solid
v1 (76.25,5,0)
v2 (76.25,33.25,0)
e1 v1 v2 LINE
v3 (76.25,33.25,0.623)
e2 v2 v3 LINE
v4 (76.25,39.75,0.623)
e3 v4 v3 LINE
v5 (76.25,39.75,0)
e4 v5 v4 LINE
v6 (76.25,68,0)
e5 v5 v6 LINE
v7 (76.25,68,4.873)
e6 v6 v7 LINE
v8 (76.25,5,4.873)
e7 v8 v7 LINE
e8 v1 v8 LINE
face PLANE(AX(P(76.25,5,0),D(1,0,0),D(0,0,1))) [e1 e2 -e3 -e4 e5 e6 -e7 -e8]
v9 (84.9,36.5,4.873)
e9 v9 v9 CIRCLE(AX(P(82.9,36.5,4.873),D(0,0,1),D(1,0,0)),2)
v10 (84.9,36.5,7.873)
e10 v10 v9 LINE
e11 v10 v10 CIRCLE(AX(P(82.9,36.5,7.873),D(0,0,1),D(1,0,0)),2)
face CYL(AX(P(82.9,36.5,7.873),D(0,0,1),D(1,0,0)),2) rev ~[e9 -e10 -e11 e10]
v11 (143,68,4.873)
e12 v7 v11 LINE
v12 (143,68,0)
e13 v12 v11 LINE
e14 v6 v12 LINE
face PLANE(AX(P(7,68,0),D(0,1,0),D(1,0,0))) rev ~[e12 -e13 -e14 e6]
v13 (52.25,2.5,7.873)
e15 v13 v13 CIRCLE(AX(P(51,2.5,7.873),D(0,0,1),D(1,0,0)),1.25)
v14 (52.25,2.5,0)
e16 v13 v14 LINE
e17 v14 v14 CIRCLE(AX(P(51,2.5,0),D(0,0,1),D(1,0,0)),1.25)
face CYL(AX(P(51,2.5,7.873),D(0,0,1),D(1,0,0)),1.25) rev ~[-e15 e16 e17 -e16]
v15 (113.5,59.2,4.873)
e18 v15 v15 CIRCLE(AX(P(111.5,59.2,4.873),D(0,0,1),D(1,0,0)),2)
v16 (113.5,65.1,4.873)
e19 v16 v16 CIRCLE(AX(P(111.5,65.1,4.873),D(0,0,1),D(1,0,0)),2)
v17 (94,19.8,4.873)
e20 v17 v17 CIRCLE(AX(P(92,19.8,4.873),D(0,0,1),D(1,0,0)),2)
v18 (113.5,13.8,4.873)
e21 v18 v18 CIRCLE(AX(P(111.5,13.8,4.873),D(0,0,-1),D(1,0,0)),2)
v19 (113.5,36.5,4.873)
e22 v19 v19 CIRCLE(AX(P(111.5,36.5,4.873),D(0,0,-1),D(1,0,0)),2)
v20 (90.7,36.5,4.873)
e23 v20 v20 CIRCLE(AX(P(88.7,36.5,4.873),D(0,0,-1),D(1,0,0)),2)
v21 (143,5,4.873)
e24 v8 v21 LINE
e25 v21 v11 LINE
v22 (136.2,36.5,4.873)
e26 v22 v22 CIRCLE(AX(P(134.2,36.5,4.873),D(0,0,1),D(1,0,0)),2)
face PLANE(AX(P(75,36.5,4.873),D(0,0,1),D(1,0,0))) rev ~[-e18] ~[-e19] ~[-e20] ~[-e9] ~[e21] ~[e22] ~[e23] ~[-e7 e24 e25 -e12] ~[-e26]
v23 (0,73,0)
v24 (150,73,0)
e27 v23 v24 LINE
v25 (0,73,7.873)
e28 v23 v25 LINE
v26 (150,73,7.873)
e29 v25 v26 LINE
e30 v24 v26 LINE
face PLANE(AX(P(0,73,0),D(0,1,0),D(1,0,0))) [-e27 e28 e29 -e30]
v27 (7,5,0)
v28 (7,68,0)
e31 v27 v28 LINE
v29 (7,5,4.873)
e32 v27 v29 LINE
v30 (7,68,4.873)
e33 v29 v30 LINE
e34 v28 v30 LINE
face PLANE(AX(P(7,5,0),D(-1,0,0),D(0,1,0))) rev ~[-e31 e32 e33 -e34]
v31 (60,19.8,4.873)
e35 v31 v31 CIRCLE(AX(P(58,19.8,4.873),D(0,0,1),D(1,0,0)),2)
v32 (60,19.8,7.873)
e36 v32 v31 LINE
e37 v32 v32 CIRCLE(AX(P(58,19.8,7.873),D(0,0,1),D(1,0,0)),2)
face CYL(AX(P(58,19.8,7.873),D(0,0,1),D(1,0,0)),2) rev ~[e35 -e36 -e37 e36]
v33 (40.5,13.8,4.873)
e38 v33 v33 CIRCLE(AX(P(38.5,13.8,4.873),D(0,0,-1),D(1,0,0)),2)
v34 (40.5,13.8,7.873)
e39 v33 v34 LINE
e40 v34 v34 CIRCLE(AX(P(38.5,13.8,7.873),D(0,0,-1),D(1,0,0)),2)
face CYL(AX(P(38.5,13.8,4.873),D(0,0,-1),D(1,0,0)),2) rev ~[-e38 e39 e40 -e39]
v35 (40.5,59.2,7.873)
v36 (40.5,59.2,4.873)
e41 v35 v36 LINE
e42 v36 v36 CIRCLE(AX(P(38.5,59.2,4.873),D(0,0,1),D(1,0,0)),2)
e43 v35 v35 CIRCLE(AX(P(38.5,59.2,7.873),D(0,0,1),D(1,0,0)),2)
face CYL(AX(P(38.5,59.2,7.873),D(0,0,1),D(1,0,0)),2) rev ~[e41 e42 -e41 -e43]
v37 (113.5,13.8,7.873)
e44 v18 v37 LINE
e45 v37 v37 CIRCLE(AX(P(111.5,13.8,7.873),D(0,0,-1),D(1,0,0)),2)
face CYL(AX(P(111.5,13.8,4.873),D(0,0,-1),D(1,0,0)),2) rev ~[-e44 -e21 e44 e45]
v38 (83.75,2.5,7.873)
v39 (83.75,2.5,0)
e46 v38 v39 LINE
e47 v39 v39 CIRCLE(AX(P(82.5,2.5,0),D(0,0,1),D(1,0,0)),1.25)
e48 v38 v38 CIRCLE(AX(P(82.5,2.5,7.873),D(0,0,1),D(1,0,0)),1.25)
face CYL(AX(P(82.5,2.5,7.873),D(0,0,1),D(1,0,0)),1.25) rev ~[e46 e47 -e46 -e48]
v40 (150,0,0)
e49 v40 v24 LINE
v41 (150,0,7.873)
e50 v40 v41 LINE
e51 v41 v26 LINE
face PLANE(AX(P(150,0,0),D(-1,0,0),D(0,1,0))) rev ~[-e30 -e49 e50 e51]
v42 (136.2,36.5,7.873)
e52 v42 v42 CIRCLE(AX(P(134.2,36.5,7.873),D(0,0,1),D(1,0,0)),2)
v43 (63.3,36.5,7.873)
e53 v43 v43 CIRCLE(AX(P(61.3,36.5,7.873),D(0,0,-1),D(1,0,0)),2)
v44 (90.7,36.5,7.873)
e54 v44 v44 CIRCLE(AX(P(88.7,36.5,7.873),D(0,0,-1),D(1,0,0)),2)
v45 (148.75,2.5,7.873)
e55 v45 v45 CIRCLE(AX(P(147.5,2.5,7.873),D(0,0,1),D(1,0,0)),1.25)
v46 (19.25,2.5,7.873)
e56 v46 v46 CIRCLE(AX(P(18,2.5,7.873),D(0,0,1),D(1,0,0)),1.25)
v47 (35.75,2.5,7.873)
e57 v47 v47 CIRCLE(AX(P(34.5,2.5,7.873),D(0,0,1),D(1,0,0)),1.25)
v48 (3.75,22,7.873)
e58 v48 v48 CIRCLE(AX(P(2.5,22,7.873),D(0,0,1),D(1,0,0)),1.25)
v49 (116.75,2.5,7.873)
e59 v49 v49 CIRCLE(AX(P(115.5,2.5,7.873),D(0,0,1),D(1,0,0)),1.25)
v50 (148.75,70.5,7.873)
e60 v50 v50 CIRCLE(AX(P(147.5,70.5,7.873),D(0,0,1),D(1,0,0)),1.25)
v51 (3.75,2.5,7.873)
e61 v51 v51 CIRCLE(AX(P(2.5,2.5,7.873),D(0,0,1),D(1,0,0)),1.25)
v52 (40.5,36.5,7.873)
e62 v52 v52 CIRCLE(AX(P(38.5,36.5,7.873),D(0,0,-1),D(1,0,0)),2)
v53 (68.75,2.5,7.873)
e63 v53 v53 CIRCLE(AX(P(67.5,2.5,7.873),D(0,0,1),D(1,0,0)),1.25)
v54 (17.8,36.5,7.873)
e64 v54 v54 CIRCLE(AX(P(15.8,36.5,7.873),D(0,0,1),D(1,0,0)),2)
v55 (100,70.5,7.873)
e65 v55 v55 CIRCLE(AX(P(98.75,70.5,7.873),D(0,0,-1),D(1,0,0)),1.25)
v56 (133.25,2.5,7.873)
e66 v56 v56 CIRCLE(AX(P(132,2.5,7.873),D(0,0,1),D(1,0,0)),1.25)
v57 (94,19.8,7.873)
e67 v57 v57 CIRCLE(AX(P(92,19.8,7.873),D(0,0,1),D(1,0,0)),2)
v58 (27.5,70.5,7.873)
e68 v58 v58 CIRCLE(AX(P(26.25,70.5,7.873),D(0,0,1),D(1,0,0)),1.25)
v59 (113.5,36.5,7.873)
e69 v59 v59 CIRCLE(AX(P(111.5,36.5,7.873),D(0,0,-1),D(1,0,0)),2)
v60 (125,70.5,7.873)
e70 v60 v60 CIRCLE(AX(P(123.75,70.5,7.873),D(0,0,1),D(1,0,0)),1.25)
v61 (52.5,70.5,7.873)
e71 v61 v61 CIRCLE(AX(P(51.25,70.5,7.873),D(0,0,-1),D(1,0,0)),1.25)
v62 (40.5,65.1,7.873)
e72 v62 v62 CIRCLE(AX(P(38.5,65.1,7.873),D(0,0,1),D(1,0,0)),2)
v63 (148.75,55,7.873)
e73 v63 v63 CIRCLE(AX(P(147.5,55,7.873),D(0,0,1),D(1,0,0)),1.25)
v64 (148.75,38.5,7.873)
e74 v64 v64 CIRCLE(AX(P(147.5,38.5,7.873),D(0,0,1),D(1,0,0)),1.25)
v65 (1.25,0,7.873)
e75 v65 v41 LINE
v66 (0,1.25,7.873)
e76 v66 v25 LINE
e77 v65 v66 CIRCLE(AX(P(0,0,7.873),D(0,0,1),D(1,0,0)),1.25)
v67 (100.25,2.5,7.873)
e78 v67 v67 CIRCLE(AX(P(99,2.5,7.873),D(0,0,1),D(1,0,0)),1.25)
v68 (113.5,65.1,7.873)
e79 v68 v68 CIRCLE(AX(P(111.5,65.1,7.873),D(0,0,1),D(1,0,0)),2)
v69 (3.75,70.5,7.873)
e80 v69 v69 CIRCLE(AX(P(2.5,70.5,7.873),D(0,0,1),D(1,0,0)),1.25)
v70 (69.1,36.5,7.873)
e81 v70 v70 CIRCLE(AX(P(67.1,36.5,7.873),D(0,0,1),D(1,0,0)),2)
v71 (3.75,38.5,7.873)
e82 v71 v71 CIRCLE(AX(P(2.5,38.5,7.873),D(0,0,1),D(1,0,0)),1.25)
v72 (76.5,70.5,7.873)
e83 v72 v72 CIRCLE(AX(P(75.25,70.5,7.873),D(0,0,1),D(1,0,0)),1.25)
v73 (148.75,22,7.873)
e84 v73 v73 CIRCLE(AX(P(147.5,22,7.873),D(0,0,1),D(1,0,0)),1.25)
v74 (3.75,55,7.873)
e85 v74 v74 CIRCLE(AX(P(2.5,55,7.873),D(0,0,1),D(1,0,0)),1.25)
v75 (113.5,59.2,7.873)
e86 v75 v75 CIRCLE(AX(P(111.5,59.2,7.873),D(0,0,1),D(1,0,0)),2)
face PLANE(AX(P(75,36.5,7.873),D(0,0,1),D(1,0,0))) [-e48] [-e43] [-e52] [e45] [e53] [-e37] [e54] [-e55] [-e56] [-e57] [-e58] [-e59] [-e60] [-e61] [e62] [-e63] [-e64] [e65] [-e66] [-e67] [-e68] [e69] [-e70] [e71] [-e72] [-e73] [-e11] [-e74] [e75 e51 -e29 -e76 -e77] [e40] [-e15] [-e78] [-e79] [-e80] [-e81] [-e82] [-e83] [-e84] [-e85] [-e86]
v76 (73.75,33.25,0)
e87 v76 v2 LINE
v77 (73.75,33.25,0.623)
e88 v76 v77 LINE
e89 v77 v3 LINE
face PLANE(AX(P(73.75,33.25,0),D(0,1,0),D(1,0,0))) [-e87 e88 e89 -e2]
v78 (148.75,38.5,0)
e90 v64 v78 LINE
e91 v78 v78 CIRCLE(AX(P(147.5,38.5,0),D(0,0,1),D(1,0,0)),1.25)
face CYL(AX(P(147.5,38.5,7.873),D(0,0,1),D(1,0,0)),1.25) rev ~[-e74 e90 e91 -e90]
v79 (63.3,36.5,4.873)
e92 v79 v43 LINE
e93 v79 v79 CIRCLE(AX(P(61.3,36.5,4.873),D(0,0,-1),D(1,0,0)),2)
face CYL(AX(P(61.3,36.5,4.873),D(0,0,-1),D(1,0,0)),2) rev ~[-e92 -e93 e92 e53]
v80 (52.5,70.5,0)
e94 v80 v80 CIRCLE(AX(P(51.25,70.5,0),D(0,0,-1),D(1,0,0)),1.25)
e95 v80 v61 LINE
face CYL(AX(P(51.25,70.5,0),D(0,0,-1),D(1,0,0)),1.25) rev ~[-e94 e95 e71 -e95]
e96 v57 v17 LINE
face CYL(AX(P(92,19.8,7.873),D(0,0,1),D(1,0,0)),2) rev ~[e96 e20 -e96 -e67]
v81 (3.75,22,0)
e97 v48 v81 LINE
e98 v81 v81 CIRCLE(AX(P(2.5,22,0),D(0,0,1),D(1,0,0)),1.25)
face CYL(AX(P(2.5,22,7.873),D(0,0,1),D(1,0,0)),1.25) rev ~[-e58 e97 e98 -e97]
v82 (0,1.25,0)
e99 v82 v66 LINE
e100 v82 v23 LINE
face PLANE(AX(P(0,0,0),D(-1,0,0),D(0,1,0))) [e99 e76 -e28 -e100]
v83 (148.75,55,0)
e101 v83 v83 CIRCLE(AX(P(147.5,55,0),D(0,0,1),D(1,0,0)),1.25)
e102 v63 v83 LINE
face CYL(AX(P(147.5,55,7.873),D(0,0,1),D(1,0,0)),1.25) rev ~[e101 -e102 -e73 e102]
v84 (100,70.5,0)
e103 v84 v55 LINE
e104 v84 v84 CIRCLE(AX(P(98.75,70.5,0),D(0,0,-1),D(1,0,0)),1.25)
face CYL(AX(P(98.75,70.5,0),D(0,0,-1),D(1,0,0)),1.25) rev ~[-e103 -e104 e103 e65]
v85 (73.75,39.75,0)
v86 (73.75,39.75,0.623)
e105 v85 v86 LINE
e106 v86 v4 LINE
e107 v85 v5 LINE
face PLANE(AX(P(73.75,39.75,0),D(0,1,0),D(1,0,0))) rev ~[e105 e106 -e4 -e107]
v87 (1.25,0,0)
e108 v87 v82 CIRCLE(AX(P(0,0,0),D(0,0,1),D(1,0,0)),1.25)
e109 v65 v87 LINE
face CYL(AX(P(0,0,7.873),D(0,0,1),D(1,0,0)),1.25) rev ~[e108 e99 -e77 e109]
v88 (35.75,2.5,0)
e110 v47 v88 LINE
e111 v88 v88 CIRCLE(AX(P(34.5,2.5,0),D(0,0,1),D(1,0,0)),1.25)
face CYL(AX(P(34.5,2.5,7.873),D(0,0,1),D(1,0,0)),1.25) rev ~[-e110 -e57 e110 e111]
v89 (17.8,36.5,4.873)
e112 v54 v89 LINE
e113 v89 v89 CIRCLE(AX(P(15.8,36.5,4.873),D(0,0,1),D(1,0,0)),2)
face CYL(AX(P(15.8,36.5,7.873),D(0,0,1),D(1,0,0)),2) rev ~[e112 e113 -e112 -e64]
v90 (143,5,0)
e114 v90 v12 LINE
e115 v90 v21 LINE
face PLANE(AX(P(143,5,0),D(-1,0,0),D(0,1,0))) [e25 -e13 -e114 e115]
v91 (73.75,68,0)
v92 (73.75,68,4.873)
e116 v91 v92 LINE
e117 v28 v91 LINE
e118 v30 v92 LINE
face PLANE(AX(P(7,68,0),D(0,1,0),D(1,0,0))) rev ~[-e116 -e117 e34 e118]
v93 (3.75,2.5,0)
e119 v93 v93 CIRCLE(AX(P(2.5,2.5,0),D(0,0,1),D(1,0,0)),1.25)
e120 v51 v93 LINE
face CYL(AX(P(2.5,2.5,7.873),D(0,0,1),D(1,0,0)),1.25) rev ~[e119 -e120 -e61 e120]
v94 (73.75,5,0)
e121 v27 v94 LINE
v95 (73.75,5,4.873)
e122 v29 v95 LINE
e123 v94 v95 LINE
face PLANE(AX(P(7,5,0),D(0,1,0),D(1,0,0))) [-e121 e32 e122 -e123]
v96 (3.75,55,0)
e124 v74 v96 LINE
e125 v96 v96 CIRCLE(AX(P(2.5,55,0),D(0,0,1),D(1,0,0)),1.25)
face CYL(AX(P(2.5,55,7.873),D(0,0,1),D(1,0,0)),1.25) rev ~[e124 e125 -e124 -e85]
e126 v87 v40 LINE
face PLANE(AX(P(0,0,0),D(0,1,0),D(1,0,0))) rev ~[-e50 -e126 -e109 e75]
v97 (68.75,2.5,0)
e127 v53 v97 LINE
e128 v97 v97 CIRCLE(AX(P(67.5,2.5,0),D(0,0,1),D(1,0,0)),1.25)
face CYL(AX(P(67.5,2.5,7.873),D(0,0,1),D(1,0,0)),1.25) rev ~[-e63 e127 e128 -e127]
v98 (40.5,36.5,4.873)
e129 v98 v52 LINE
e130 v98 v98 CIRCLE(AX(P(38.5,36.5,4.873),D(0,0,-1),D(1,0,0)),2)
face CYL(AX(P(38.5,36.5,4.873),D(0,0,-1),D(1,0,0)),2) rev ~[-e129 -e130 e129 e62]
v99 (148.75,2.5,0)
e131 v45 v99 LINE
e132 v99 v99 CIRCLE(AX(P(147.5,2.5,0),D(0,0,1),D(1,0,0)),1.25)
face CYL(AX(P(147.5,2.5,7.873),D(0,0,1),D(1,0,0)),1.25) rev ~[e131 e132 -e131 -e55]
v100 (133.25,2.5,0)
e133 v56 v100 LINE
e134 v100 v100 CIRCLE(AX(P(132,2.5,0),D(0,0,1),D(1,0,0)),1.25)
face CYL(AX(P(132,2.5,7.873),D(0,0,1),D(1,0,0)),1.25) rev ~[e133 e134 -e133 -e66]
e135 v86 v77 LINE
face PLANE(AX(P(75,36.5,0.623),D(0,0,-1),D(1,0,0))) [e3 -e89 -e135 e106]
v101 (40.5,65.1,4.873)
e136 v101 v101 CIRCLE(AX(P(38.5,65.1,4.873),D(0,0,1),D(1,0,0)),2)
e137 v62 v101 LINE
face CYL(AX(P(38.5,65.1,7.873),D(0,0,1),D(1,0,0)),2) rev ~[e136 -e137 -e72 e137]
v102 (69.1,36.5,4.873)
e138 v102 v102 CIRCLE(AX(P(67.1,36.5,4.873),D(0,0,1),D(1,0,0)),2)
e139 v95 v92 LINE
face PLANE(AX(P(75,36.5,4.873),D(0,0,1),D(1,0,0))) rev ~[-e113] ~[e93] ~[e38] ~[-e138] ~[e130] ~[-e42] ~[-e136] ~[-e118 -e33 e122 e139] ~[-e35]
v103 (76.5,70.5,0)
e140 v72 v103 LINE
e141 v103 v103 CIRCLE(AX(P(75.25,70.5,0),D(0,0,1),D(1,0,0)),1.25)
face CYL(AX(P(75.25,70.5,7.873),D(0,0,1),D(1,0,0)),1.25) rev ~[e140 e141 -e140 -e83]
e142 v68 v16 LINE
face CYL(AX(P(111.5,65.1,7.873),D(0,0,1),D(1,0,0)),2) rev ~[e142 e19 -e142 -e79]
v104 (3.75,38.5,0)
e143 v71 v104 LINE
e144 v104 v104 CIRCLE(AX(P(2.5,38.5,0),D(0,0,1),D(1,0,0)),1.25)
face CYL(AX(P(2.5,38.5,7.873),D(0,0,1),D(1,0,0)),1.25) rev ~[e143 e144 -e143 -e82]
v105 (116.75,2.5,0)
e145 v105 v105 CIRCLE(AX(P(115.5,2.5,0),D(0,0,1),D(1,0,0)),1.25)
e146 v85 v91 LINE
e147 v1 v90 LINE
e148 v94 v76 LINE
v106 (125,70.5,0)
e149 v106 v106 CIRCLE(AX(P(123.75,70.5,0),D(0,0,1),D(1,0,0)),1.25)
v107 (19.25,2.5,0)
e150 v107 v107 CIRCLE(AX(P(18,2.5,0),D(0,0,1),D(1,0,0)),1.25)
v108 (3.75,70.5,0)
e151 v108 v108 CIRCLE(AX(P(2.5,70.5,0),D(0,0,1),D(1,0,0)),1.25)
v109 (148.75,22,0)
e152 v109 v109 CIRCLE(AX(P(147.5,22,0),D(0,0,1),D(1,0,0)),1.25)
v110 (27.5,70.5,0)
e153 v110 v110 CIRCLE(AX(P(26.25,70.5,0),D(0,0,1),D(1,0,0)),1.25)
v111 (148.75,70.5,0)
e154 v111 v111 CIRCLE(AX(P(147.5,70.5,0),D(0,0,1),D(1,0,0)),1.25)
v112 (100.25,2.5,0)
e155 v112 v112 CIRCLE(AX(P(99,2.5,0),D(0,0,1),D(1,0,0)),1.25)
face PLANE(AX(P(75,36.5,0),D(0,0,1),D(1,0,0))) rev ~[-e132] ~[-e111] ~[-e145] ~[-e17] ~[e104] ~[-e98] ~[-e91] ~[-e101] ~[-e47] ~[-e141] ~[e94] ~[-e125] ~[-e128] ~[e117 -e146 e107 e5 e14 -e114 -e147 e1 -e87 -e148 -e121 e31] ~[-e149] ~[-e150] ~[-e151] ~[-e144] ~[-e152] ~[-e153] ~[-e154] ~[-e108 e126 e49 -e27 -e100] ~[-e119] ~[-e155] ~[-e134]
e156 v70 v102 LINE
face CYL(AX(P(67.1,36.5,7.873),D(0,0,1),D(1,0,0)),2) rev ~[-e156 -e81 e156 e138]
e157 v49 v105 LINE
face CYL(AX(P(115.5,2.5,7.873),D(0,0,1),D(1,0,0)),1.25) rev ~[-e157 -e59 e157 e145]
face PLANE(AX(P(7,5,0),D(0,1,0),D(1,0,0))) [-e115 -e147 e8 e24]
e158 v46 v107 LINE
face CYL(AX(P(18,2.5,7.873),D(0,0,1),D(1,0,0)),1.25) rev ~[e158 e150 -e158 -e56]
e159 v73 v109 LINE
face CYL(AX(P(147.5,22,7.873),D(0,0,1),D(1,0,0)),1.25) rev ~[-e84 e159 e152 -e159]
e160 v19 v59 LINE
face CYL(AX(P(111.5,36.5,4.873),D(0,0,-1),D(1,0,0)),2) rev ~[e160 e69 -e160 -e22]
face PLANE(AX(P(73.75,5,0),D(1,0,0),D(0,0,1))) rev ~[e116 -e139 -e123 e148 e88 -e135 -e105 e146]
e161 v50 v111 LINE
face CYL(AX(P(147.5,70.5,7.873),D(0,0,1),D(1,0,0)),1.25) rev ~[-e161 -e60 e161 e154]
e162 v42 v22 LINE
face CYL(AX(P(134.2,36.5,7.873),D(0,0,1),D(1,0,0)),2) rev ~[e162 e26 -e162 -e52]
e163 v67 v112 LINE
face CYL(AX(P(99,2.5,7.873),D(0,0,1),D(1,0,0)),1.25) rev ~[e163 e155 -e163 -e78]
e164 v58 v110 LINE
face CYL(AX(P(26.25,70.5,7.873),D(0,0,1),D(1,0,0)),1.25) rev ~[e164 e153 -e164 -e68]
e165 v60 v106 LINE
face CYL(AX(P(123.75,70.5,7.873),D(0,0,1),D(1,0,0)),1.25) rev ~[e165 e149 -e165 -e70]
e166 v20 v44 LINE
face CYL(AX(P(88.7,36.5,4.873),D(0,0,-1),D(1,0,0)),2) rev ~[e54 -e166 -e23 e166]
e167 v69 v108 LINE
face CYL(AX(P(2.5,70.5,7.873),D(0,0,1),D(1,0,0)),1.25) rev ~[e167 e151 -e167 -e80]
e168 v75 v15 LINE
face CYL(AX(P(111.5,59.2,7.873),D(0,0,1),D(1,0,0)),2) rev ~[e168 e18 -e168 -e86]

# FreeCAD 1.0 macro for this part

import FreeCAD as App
import Part
import Sketcher

V = App.Vector

doc = App.newDocument("Part")
body = doc.addObject("PartDesign::Body", "Body")

# Sketch on XY plane
sketch1 = body.newObject("Sketcher::SketchObject", "Sketch")
sketch1.AttachmentSupport = (doc.getObject("XY_Plane"), [""])
sketch1.MapMode = "FlatFace"
sketch1.addGeometry(Part.LineSegment(V(0, 73, 0), V(0, 0, 0)), False)
sketch1.addGeometry(Part.LineSegment(V(0, 0, 0), V(150, 0, 0)), False)
sketch1.addGeometry(Part.LineSegment(V(150, 0, 0), V(150, 73, 0)), False)
sketch1.addGeometry(Part.LineSegment(V(150, 73, 0), V(0, 73, 0)), False)
sketch1.addConstraint(Sketcher.Constraint("Coincident", 0, 2, 1, 1))
sketch1.addConstraint(Sketcher.Constraint("Coincident", 1, 2, 2, 1))
sketch1.addConstraint(Sketcher.Constraint("Coincident", 2, 2, 3, 1))
sketch1.addConstraint(Sketcher.Constraint("Coincident", 3, 2, 0, 1))
sketch1.addConstraint(Sketcher.Constraint("Vertical", 0))
sketch1.addConstraint(Sketcher.Constraint("Horizontal", 1))
sketch1.addConstraint(Sketcher.Constraint("Vertical", 2))
sketch1.addConstraint(Sketcher.Constraint("Horizontal", 3))
sketch1.addConstraint(Sketcher.Constraint("Coincident", 0, 2, -1, 1))
sketch1.addConstraint(Sketcher.Constraint("DistanceX", 1, 1, 1, 2, 150.0))
sketch1.addConstraint(Sketcher.Constraint("DistanceY", 0, 2, 0, 1, 73.0))
pad1 = body.newObject("PartDesign::Pad", "Pad")
pad1.Profile = sketch1
pad1.Length = 7.873

# Sketch on XY plane
sketch2 = body.newObject("Sketcher::SketchObject", "Sketch001")
sketch2.AttachmentSupport = (doc.getObject("XY_Plane"), [""])
sketch2.MapMode = "FlatFace"
sketch2.addGeometry(Part.LineSegment(V(7, 68, 0), V(7, 5, 0)), False)
sketch2.addGeometry(Part.LineSegment(V(7, 5, 0), V(143, 5, 0)), False)
sketch2.addGeometry(Part.LineSegment(V(143, 5, 0), V(143, 68, 0)), False)
sketch2.addGeometry(Part.LineSegment(V(143, 68, 0), V(7, 68, 0)), False)
sketch2.addConstraint(Sketcher.Constraint("Coincident", 0, 2, 1, 1))
sketch2.addConstraint(Sketcher.Constraint("Coincident", 1, 2, 2, 1))
sketch2.addConstraint(Sketcher.Constraint("Coincident", 2, 2, 3, 1))
sketch2.addConstraint(Sketcher.Constraint("Coincident", 3, 2, 0, 1))
sketch2.addConstraint(Sketcher.Constraint("Vertical", 0))
sketch2.addConstraint(Sketcher.Constraint("Horizontal", 1))
sketch2.addConstraint(Sketcher.Constraint("Vertical", 2))
sketch2.addConstraint(Sketcher.Constraint("Horizontal", 3))
sketch2.addConstraint(Sketcher.Constraint("DistanceX", 1, 1, 1, 2, 136.0))
sketch2.addConstraint(Sketcher.Constraint("DistanceY", 0, 2, 0, 1, 63.0))
sketch2.addConstraint(Sketcher.Constraint("DistanceX", -1, 1, 0, 2, 7.0))
sketch2.addConstraint(Sketcher.Constraint("DistanceY", -1, 1, 0, 2, 5.0))
pocket1 = body.newObject("PartDesign::Pocket", "Pocket")
pocket1.Profile = sketch2
pocket1.Length = 4.873
pocket1.Reversed = True

# Sketch on XY plane
sketch3 = body.newObject("Sketcher::SketchObject", "Sketch002")
sketch3.AttachmentSupport = (doc.getObject("XY_Plane"), [""])
sketch3.MapMode = "FlatFace"
sketch3.AttachmentOffset = App.Placement(V(0, 0, 7.873), App.Rotation())
sketch3.addGeometry(Part.Circle(V(2.5, 2.5, 0), V(0, 0, 1), 1.2), False)
sketch3.addConstraint(Sketcher.Constraint("Diameter", 0, 2.5))
sketch3.addConstraint(Sketcher.Constraint("DistanceX", -1, 1, 0, 3, 2.5))
sketch3.addConstraint(Sketcher.Constraint("DistanceY", -1, 1, 0, 3, 2.5))
pocket2 = body.newObject("PartDesign::Pocket", "Pocket001")
pocket2.Profile = sketch3
pocket2.Length = 7.873

# Sketch on XY plane
sketch4 = body.newObject("Sketcher::SketchObject", "Sketch003")
sketch4.AttachmentSupport = (doc.getObject("XY_Plane"), [""])
sketch4.MapMode = "FlatFace"
sketch4.AttachmentOffset = App.Placement(V(0, 0, 7.873), App.Rotation())
sketch4.addGeometry(Part.Circle(V(18, 2.5, 0), V(0, 0, 1), 1.2), False)
sketch4.addConstraint(Sketcher.Constraint("Diameter", 0, 2.5))
sketch4.addConstraint(Sketcher.Constraint("DistanceX", -1, 1, 0, 3, 18.0))
sketch4.addConstraint(Sketcher.Constraint("DistanceY", -1, 1, 0, 3, 2.5))
pocket3 = body.newObject("PartDesign::Pocket", "Pocket002")
pocket3.Profile = sketch4
pocket3.Length = 7.873

# Sketch on XY plane
sketch5 = body.newObject("Sketcher::SketchObject", "Sketch004")
sketch5.AttachmentSupport = (doc.getObject("XY_Plane"), [""])
sketch5.MapMode = "FlatFace"
sketch5.AttachmentOffset = App.Placement(V(0, 0, 7.873), App.Rotation())
sketch5.addGeometry(Part.Circle(V(34.5, 2.5, 0), V(0, 0, 1), 1.2), False)
sketch5.addConstraint(Sketcher.Constraint("Diameter", 0, 2.5))
sketch5.addConstraint(Sketcher.Constraint("DistanceX", -1, 1, 0, 3, 34.5))
sketch5.addConstraint(Sketcher.Constraint("DistanceY", -1, 1, 0, 3, 2.5))
pocket4 = body.newObject("PartDesign::Pocket", "Pocket003")
pocket4.Profile = sketch5
pocket4.Length = 7.873

# Sketch on XY plane
sketch6 = body.newObject("Sketcher::SketchObject", "Sketch005")
sketch6.AttachmentSupport = (doc.getObject("XY_Plane"), [""])
sketch6.MapMode = "FlatFace"
sketch6.AttachmentOffset = App.Placement(V(0, 0, 7.873), App.Rotation())
sketch6.addGeometry(Part.Circle(V(51, 2.5, 0), V(0, 0, 1), 1.2), False)
sketch6.addConstraint(Sketcher.Constraint("Diameter", 0, 2.5))
sketch6.addConstraint(Sketcher.Constraint("DistanceX", -1, 1, 0, 3, 51.0))
sketch6.addConstraint(Sketcher.Constraint("DistanceY", -1, 1, 0, 3, 2.5))
pocket5 = body.newObject("PartDesign::Pocket", "Pocket004")
pocket5.Profile = sketch6
pocket5.Length = 7.873

# Sketch on XY plane
sketch7 = body.newObject("Sketcher::SketchObject", "Sketch006")
sketch7.AttachmentSupport = (doc.getObject("XY_Plane"), [""])
sketch7.MapMode = "FlatFace"
sketch7.AttachmentOffset = App.Placement(V(0, 0, 7.873), App.Rotation())
sketch7.addGeometry(Part.Circle(V(67.5, 2.5, 0), V(0, 0, 1), 1.2), False)
sketch7.addConstraint(Sketcher.Constraint("Diameter", 0, 2.5))
sketch7.addConstraint(Sketcher.Constraint("DistanceX", -1, 1, 0, 3, 67.5))
sketch7.addConstraint(Sketcher.Constraint("DistanceY", -1, 1, 0, 3, 2.5))
pocket6 = body.newObject("PartDesign::Pocket", "Pocket005")
pocket6.Profile = sketch7
pocket6.Length = 7.873

# Sketch on XY plane
sketch8 = body.newObject("Sketcher::SketchObject", "Sketch007")
sketch8.AttachmentSupport = (doc.getObject("XY_Plane"), [""])
sketch8.MapMode = "FlatFace"
sketch8.AttachmentOffset = App.Placement(V(0, 0, 7.873), App.Rotation())
sketch8.addGeometry(Part.Circle(V(82.5, 2.5, 0), V(0, 0, 1), 1.2), False)
sketch8.addConstraint(Sketcher.Constraint("Diameter", 0, 2.5))
sketch8.addConstraint(Sketcher.Constraint("DistanceX", -1, 1, 0, 3, 82.5))
sketch8.addConstraint(Sketcher.Constraint("DistanceY", -1, 1, 0, 3, 2.5))
pocket7 = body.newObject("PartDesign::Pocket", "Pocket006")
pocket7.Profile = sketch8
pocket7.Length = 7.873

# Sketch on XY plane
sketch9 = body.newObject("Sketcher::SketchObject", "Sketch008")
sketch9.AttachmentSupport = (doc.getObject("XY_Plane"), [""])
sketch9.MapMode = "FlatFace"
sketch9.AttachmentOffset = App.Placement(V(0, 0, 7.873), App.Rotation())
sketch9.addGeometry(Part.Circle(V(99, 2.5, 0), V(0, 0, 1), 1.2), False)
sketch9.addConstraint(Sketcher.Constraint("Diameter", 0, 2.5))
sketch9.addConstraint(Sketcher.Constraint("DistanceX", -1, 1, 0, 3, 99.0))
sketch9.addConstraint(Sketcher.Constraint("DistanceY", -1, 1, 0, 3, 2.5))
pocket8 = body.newObject("PartDesign::Pocket", "Pocket007")
pocket8.Profile = sketch9
pocket8.Length = 7.873

# Sketch on XY plane
sketch10 = body.newObject("Sketcher::SketchObject", "Sketch009")
sketch10.AttachmentSupport = (doc.getObject("XY_Plane"), [""])
sketch10.MapMode = "FlatFace"
sketch10.AttachmentOffset = App.Placement(V(0, 0, 7.873), App.Rotation())
sketch10.addGeometry(Part.Circle(V(115.5, 2.5, 0), V(0, 0, 1), 1.2), False)
sketch10.addConstraint(Sketcher.Constraint("Diameter", 0, 2.5))
sketch10.addConstraint(Sketcher.Constraint("DistanceX", -1, 1, 0, 3, 115.5))
sketch10.addConstraint(Sketcher.Constraint("DistanceY", -1, 1, 0, 3, 2.5))
pocket9 = body.newObject("PartDesign::Pocket", "Pocket008")
pocket9.Profile = sketch10
pocket9.Length = 7.873

# Sketch on XY plane
sketch11 = body.newObject("Sketcher::SketchObject", "Sketch010")
sketch11.AttachmentSupport = (doc.getObject("XY_Plane"), [""])
sketch11.MapMode = "FlatFace"
sketch11.AttachmentOffset = App.Placement(V(0, 0, 7.873), App.Rotation())
sketch11.addGeometry(Part.Circle(V(132, 2.5, 0), V(0, 0, 1), 1.2), False)
sketch11.addConstraint(Sketcher.Constraint("Diameter", 0, 2.5))
sketch11.addConstraint(Sketcher.Constraint("DistanceX", -1, 1, 0, 3, 132.0))
sketch11.addConstraint(Sketcher.Constraint("DistanceY", -1, 1, 0, 3, 2.5))
pocket10 = body.newObject("PartDesign::Pocket", "Pocket009")
pocket10.Profile = sketch11
pocket10.Length = 7.873

# Sketch on XY plane
sketch12 = body.newObject("Sketcher::SketchObject", "Sketch011")
sketch12.AttachmentSupport = (doc.getObject("XY_Plane"), [""])
sketch12.MapMode = "FlatFace"
sketch12.AttachmentOffset = App.Placement(V(0, 0, 7.873), App.Rotation())
sketch12.addGeometry(Part.Circle(V(147.5, 2.5, 0), V(0, 0, 1), 1.2), False)
sketch12.addConstraint(Sketcher.Constraint("Diameter", 0, 2.5))
sketch12.addConstraint(Sketcher.Constraint("DistanceX", -1, 1, 0, 3, 147.5))
sketch12.addConstraint(Sketcher.Constraint("DistanceY", -1, 1, 0, 3, 2.5))
pocket11 = body.newObject("PartDesign::Pocket", "Pocket010")
pocket11.Profile = sketch12
pocket11.Length = 7.873

# Sketch on XY plane
sketch13 = body.newObject("Sketcher::SketchObject", "Sketch012")
sketch13.AttachmentSupport = (doc.getObject("XY_Plane"), [""])
sketch13.MapMode = "FlatFace"
sketch13.AttachmentOffset = App.Placement(V(0, 0, 7.873), App.Rotation())
sketch13.addGeometry(Part.Circle(V(2.5, 22, 0), V(0, 0, 1), 1.2), False)
sketch13.addConstraint(Sketcher.Constraint("Diameter", 0, 2.5))
sketch13.addConstraint(Sketcher.Constraint("DistanceY", -1, 1, 0, 3, 22.0))
sketch13.addConstraint(Sketcher.Constraint("DistanceX", -1, 1, 0, 3, 2.5))
pocket12 = body.newObject("PartDesign::Pocket", "Pocket011")
pocket12.Profile = sketch13
pocket12.Length = 7.873

# Sketch on XY plane
sketch14 = body.newObject("Sketcher::SketchObject", "Sketch013")
sketch14.AttachmentSupport = (doc.getObject("XY_Plane"), [""])
sketch14.MapMode = "FlatFace"
sketch14.AttachmentOffset = App.Placement(V(0, 0, 7.873), App.Rotation())
sketch14.addGeometry(Part.Circle(V(147.5, 22, 0), V(0, 0, 1), 1.2), False)
sketch14.addConstraint(Sketcher.Constraint("Diameter", 0, 2.5))
sketch14.addConstraint(Sketcher.Constraint("DistanceY", -1, 1, 0, 3, 22.0))
sketch14.addConstraint(Sketcher.Constraint("DistanceX", -1, 1, 0, 3, 147.5))
pocket13 = body.newObject("PartDesign::Pocket", "Pocket012")
pocket13.Profile = sketch14
pocket13.Length = 7.873

# Sketch on XY plane
sketch15 = body.newObject("Sketcher::SketchObject", "Sketch014")
sketch15.AttachmentSupport = (doc.getObject("XY_Plane"), [""])
sketch15.MapMode = "FlatFace"
sketch15.AttachmentOffset = App.Placement(V(0, 0, 7.873), App.Rotation())
sketch15.addGeometry(Part.Circle(V(147.5, 38.5, 0), V(0, 0, 1), 1.2), False)
sketch15.addConstraint(Sketcher.Constraint("Diameter", 0, 2.5))
sketch15.addConstraint(Sketcher.Constraint("DistanceX", -1, 1, 0, 3, 147.5))
sketch15.addConstraint(Sketcher.Constraint("DistanceY", -1, 1, 0, 3, 38.5))
pocket14 = body.newObject("PartDesign::Pocket", "Pocket013")
pocket14.Profile = sketch15
pocket14.Length = 7.873

# Sketch on XY plane
sketch16 = body.newObject("Sketcher::SketchObject", "Sketch015")
sketch16.AttachmentSupport = (doc.getObject("XY_Plane"), [""])
sketch16.MapMode = "FlatFace"
sketch16.AttachmentOffset = App.Placement(V(0, 0, 7.873), App.Rotation())
sketch16.addGeometry(Part.Circle(V(2.5, 38.5, 0), V(0, 0, 1), 1.2), False)
sketch16.addConstraint(Sketcher.Constraint("Diameter", 0, 2.5))
sketch16.addConstraint(Sketcher.Constraint("DistanceX", -1, 1, 0, 3, 2.5))
sketch16.addConstraint(Sketcher.Constraint("DistanceY", -1, 1, 0, 3, 38.5))
pocket15 = body.newObject("PartDesign::Pocket", "Pocket014")
pocket15.Profile = sketch16
pocket15.Length = 7.873

# Sketch on XY plane
sketch17 = body.newObject("Sketcher::SketchObject", "Sketch016")
sketch17.AttachmentSupport = (doc.getObject("XY_Plane"), [""])
sketch17.MapMode = "FlatFace"
sketch17.AttachmentOffset = App.Placement(V(0, 0, 7.873), App.Rotation())
sketch17.addGeometry(Part.Circle(V(2.5, 55, 0), V(0, 0, 1), 1.2), False)
sketch17.addConstraint(Sketcher.Constraint("Diameter", 0, 2.5))
sketch17.addConstraint(Sketcher.Constraint("DistanceY", -1, 1, 0, 3, 55.0))
sketch17.addConstraint(Sketcher.Constraint("DistanceX", -1, 1, 0, 3, 2.5))
pocket16 = body.newObject("PartDesign::Pocket", "Pocket015")
pocket16.Profile = sketch17
pocket16.Length = 7.873

# Sketch on XY plane
sketch18 = body.newObject("Sketcher::SketchObject", "Sketch017")
sketch18.AttachmentSupport = (doc.getObject("XY_Plane"), [""])
sketch18.MapMode = "FlatFace"
sketch18.AttachmentOffset = App.Placement(V(0, 0, 7.873), App.Rotation())
sketch18.addGeometry(Part.Circle(V(147.5, 55, 0), V(0, 0, 1), 1.2), False)
sketch18.addConstraint(Sketcher.Constraint("Diameter", 0, 2.5))
sketch18.addConstraint(Sketcher.Constraint("DistanceY", -1, 1, 0, 3, 55.0))
sketch18.addConstraint(Sketcher.Constraint("DistanceX", -1, 1, 0, 3, 147.5))
pocket17 = body.newObject("PartDesign::Pocket", "Pocket016")
pocket17.Profile = sketch18
pocket17.Length = 7.873

# Sketch on XY plane
sketch19 = body.newObject("Sketcher::SketchObject", "Sketch018")
sketch19.AttachmentSupport = (doc.getObject("XY_Plane"), [""])
sketch19.MapMode = "FlatFace"
sketch19.AttachmentOffset = App.Placement(V(0, 0, 7.873), App.Rotation())
sketch19.addGeometry(Part.Circle(V(2.5, 70.5, 0), V(0, 0, 1), 1.2), False)
sketch19.addConstraint(Sketcher.Constraint("Diameter", 0, 2.5))
sketch19.addConstraint(Sketcher.Constraint("DistanceX", -1, 1, 0, 3, 2.5))
sketch19.addConstraint(Sketcher.Constraint("DistanceY", -1, 1, 0, 3, 70.5))
pocket18 = body.newObject("PartDesign::Pocket", "Pocket017")
pocket18.Profile = sketch19
pocket18.Length = 7.873

# Sketch on XY plane
sketch20 = body.newObject("Sketcher::SketchObject", "Sketch019")
sketch20.AttachmentSupport = (doc.getObject("XY_Plane"), [""])
sketch20.MapMode = "FlatFace"
sketch20.AttachmentOffset = App.Placement(V(0, 0, 7.873), App.Rotation())
sketch20.addGeometry(Part.Circle(V(147.5, 70.5, 0), V(0, 0, 1), 1.2), False)
sketch20.addConstraint(Sketcher.Constraint("Diameter", 0, 2.5))
sketch20.addConstraint(Sketcher.Constraint("DistanceX", -1, 1, 0, 3, 147.5))
sketch20.addConstraint(Sketcher.Constraint("DistanceY", -1, 1, 0, 3, 70.5))
pocket19 = body.newObject("PartDesign::Pocket", "Pocket018")
pocket19.Profile = sketch20
pocket19.Length = 7.873

# Sketch on XY plane
sketch21 = body.newObject("Sketcher::SketchObject", "Sketch020")
sketch21.AttachmentSupport = (doc.getObject("XY_Plane"), [""])
sketch21.MapMode = "FlatFace"
sketch21.AttachmentOffset = App.Placement(V(0, 0, 7.873), App.Rotation())
sketch21.addGeometry(Part.Circle(V(26.2, 70.5, 0), V(0, 0, 1), 1.2), False)
sketch21.addGeometry(Part.Circle(V(0, 0, 0), V(0, 0, 1), 1.2), False)
sketch21.addConstraint(Sketcher.Constraint("Coincident", 1, 3, -1, 1))
sketch21.addConstraint(Sketcher.Constraint("Equal", 0, 1))
sketch21.addConstraint(Sketcher.Constraint("Diameter", 0, 2.5))
sketch21.addConstraint(Sketcher.Constraint("DistanceY", -1, 1, 0, 3, 70.5))
sketch21.addConstraint(Sketcher.Constraint("DistanceX", -1, 1, 0, 3, 26.25))
pocket20 = body.newObject("PartDesign::Pocket", "Pocket019")
pocket20.Profile = sketch21
pocket20.Length = 7.873

# Sketch on XY plane
sketch22 = body.newObject("Sketcher::SketchObject", "Sketch021")
sketch22.AttachmentSupport = (doc.getObject("XY_Plane"), [""])
sketch22.MapMode = "FlatFace"
sketch22.AttachmentOffset = App.Placement(V(0, 0, 7.873), App.Rotation())
sketch22.addGeometry(Part.Circle(V(123.8, 70.5, 0), V(0, 0, 1), 1.2), False)
sketch22.addConstraint(Sketcher.Constraint("Diameter", 0, 2.5))
sketch22.addConstraint(Sketcher.Constraint("DistanceY", -1, 1, 0, 3, 70.5))
sketch22.addConstraint(Sketcher.Constraint("DistanceX", -1, 1, 0, 3, 123.75))
pocket21 = body.newObject("PartDesign::Pocket", "Pocket020")
pocket21.Profile = sketch22
pocket21.Length = 7.873

# Sketch on XY plane
sketch23 = body.newObject("Sketcher::SketchObject", "Sketch022")
sketch23.AttachmentSupport = (doc.getObject("XY_Plane"), [""])
sketch23.MapMode = "FlatFace"
sketch23.AttachmentOffset = App.Placement(V(0, 0, 7.873), App.Rotation())
sketch23.addGeometry(Part.Circle(V(75.2, 70.5, 0), V(0, 0, 1), 1.2), False)
sketch23.addConstraint(Sketcher.Constraint("Diameter", 0, 2.5))
sketch23.addConstraint(Sketcher.Constraint("DistanceY", -1, 1, 0, 3, 70.5))
sketch23.addConstraint(Sketcher.Constraint("DistanceX", -1, 1, 0, 3, 75.25))
pocket22 = body.newObject("PartDesign::Pocket", "Pocket021")
pocket22.Profile = sketch23
pocket22.Length = 7.873

# Sketch on XY plane
sketch24 = body.newObject("Sketcher::SketchObject", "Sketch023")
sketch24.AttachmentSupport = (doc.getObject("XY_Plane"), [""])
sketch24.MapMode = "FlatFace"
sketch24.AttachmentOffset = App.Placement(V(0, 0, 7.873), App.Rotation())
sketch24.addGeometry(Part.Circle(V(38.5, 65.1, 0), V(0, 0, 1), 2), False)
sketch24.addConstraint(Sketcher.Constraint("Diameter", 0, 4.0))
sketch24.addConstraint(Sketcher.Constraint("DistanceX", -1, 1, 0, 3, 38.5))
sketch24.addConstraint(Sketcher.Constraint("DistanceY", -1, 1, 0, 3, 65.1))
pocket23 = body.newObject("PartDesign::Pocket", "Pocket022")
pocket23.Profile = sketch24
pocket23.Length = 3

# Sketch on XY plane
sketch25 = body.newObject("Sketcher::SketchObject", "Sketch024")
sketch25.AttachmentSupport = (doc.getObject("XY_Plane"), [""])
sketch25.MapMode = "FlatFace"
sketch25.AttachmentOffset = App.Placement(V(0, 0, 7.873), App.Rotation())
sketch25.addGeometry(Part.Circle(V(38.5, 59.2, 0), V(0, 0, 1), 2), False)
sketch25.addConstraint(Sketcher.Constraint("Diameter", 0, 4.0))
sketch25.addConstraint(Sketcher.Constraint("DistanceX", -1, 1, 0, 3, 38.5))
sketch25.addConstraint(Sketcher.Constraint("DistanceY", -1, 1, 0, 3, 59.2))
pocket24 = body.newObject("PartDesign::Pocket", "Pocket023")
pocket24.Profile = sketch25
pocket24.Length = 3

# Sketch on XY plane
sketch26 = body.newObject("Sketcher::SketchObject", "Sketch025")
sketch26.AttachmentSupport = (doc.getObject("XY_Plane"), [""])
sketch26.MapMode = "FlatFace"
sketch26.AttachmentOffset = App.Placement(V(0, 0, 7.873), App.Rotation())
sketch26.addGeometry(Part.Circle(V(15.8, 36.5, 0), V(0, 0, 1), 2), False)
sketch26.addConstraint(Sketcher.Constraint("Diameter", 0, 4.0))
sketch26.addConstraint(Sketcher.Constraint("DistanceX", -1, 1, 0, 3, 15.8))
sketch26.addConstraint(Sketcher.Constraint("DistanceY", -1, 1, 0, 3, 36.5))
pocket25 = body.newObject("PartDesign::Pocket", "Pocket024")
pocket25.Profile = sketch26
pocket25.Length = 3

# Sketch on XY plane
sketch27 = body.newObject("Sketcher::SketchObject", "Sketch026")
sketch27.AttachmentSupport = (doc.getObject("XY_Plane"), [""])
sketch27.MapMode = "FlatFace"
sketch27.AttachmentOffset = App.Placement(V(0, 0, 7.873), App.Rotation())
sketch27.addGeometry(Part.Circle(V(67.1, 36.5, 0), V(0, 0, 1), 2), False)
sketch27.addConstraint(Sketcher.Constraint("Diameter", 0, 4.0))
sketch27.addConstraint(Sketcher.Constraint("DistanceX", -1, 1, 0, 3, 67.1))
sketch27.addConstraint(Sketcher.Constraint("DistanceY", -1, 1, 0, 3, 36.5))
pocket26 = body.newObject("PartDesign::Pocket", "Pocket025")
pocket26.Profile = sketch27
pocket26.Length = 3

# Sketch on XY plane
sketch28 = body.newObject("Sketcher::SketchObject", "Sketch027")
sketch28.AttachmentSupport = (doc.getObject("XY_Plane"), [""])
sketch28.MapMode = "FlatFace"
sketch28.AttachmentOffset = App.Placement(V(0, 0, 7.873), App.Rotation())
sketch28.addGeometry(Part.Circle(V(111.5, 65.1, 0), V(0, 0, 1), 2), False)
sketch28.addConstraint(Sketcher.Constraint("Diameter", 0, 4.0))
sketch28.addConstraint(Sketcher.Constraint("DistanceX", -1, 1, 0, 3, 111.5))
sketch28.addConstraint(Sketcher.Constraint("DistanceY", -1, 1, 0, 3, 65.1))
pocket27 = body.newObject("PartDesign::Pocket", "Pocket026")
pocket27.Profile = sketch28
pocket27.Length = 3

# Sketch on XY plane
sketch29 = body.newObject("Sketcher::SketchObject", "Sketch028")
sketch29.AttachmentSupport = (doc.getObject("XY_Plane"), [""])
sketch29.MapMode = "FlatFace"
sketch29.AttachmentOffset = App.Placement(V(0, 0, 7.873), App.Rotation())
sketch29.addGeometry(Part.Circle(V(111.5, 59.2, 0), V(0, 0, 1), 2), False)
sketch29.addConstraint(Sketcher.Constraint("Diameter", 0, 4.0))
sketch29.addConstraint(Sketcher.Constraint("DistanceX", -1, 1, 0, 3, 111.5))
sketch29.addConstraint(Sketcher.Constraint("DistanceY", -1, 1, 0, 3, 59.2))
pocket28 = body.newObject("PartDesign::Pocket", "Pocket027")
pocket28.Profile = sketch29
pocket28.Length = 3

# Sketch on XY plane
sketch30 = body.newObject("Sketcher::SketchObject", "Sketch029")
sketch30.AttachmentSupport = (doc.getObject("XY_Plane"), [""])
sketch30.MapMode = "FlatFace"
sketch30.AttachmentOffset = App.Placement(V(0, 0, 7.873), App.Rotation())
sketch30.addGeometry(Part.Circle(V(82.9, 36.5, 0), V(0, 0, 1), 2), False)
sketch30.addConstraint(Sketcher.Constraint("Diameter", 0, 4.0))
sketch30.addConstraint(Sketcher.Constraint("DistanceX", -1, 1, 0, 3, 82.9))
sketch30.addConstraint(Sketcher.Constraint("DistanceY", -1, 1, 0, 3, 36.5))
pocket29 = body.newObject("PartDesign::Pocket", "Pocket028")
pocket29.Profile = sketch30
pocket29.Length = 3

# Sketch on XY plane
sketch31 = body.newObject("Sketcher::SketchObject", "Sketch030")
sketch31.AttachmentSupport = (doc.getObject("XY_Plane"), [""])
sketch31.MapMode = "FlatFace"
sketch31.AttachmentOffset = App.Placement(V(0, 0, 7.873), App.Rotation())
sketch31.addGeometry(Part.Circle(V(134.2, 36.5, 0), V(0, 0, 1), 2), False)
sketch31.addConstraint(Sketcher.Constraint("Diameter", 0, 4.0))
sketch31.addConstraint(Sketcher.Constraint("DistanceX", -1, 1, 0, 3, 134.2))
sketch31.addConstraint(Sketcher.Constraint("DistanceY", -1, 1, 0, 3, 36.5))
pocket30 = body.newObject("PartDesign::Pocket", "Pocket029")
pocket30.Profile = sketch31
pocket30.Length = 3

# Sketch on XY plane
sketch32 = body.newObject("Sketcher::SketchObject", "Sketch031")
sketch32.AttachmentSupport = (doc.getObject("XY_Plane"), [""])
sketch32.MapMode = "FlatFace"
sketch32.AttachmentOffset = App.Placement(V(0, 0, 7.873), App.Rotation())
sketch32.addGeometry(Part.Circle(V(58, 19.8, 0), V(0, 0, 1), 2), False)
sketch32.addConstraint(Sketcher.Constraint("Diameter", 0, 4.0))
sketch32.addConstraint(Sketcher.Constraint("DistanceX", -1, 1, 0, 3, 58.0))
sketch32.addConstraint(Sketcher.Constraint("DistanceY", -1, 1, 0, 3, 19.8))
pocket31 = body.newObject("PartDesign::Pocket", "Pocket030")
pocket31.Profile = sketch32
pocket31.Length = 3

# Sketch on XY plane
sketch33 = body.newObject("Sketcher::SketchObject", "Sketch032")
sketch33.AttachmentSupport = (doc.getObject("XY_Plane"), [""])
sketch33.MapMode = "FlatFace"
sketch33.AttachmentOffset = App.Placement(V(0, 0, 7.873), App.Rotation())
sketch33.addGeometry(Part.Circle(V(92, 19.8, 0), V(0, 0, 1), 2), False)
sketch33.addConstraint(Sketcher.Constraint("Diameter", 0, 4.0))
sketch33.addConstraint(Sketcher.Constraint("DistanceX", -1, 1, 0, 3, 92.0))
sketch33.addConstraint(Sketcher.Constraint("DistanceY", -1, 1, 0, 3, 19.8))
pocket32 = body.newObject("PartDesign::Pocket", "Pocket031")
pocket32.Profile = sketch33
pocket32.Length = 3

# Sketch on XZ plane
sketch34 = body.newObject("Sketcher::SketchObject", "Sketch033")
sketch34.AttachmentSupport = (doc.getObject("XZ_Plane"), [""])
sketch34.MapMode = "FlatFace"
sketch34.AttachmentOffset = App.Placement(V(0, 0, -5), App.Rotation())
sketch34.addGeometry(Part.LineSegment(V(76.2, 4.9, 0), V(76.2, 0, 0)), False)
sketch34.addGeometry(Part.LineSegment(V(76.2, 0, 0), V(73.8, 0, 0)), False)
sketch34.addGeometry(Part.LineSegment(V(73.8, 0, 0), V(73.8, 4.9, 0)), False)
sketch34.addGeometry(Part.LineSegment(V(73.8, 4.9, 0), V(76.2, 4.9, 0)), False)
sketch34.addConstraint(Sketcher.Constraint("Coincident", 0, 2, 1, 1))
sketch34.addConstraint(Sketcher.Constraint("Coincident", 1, 2, 2, 1))
sketch34.addConstraint(Sketcher.Constraint("Coincident", 2, 2, 3, 1))
sketch34.addConstraint(Sketcher.Constraint("Coincident", 3, 2, 0, 1))
sketch34.addConstraint(Sketcher.Constraint("Vertical", 0))
sketch34.addConstraint(Sketcher.Constraint("Horizontal", 1))
sketch34.addConstraint(Sketcher.Constraint("Vertical", 2))
sketch34.addConstraint(Sketcher.Constraint("Horizontal", 3))
sketch34.addConstraint(Sketcher.Constraint("PointOnObject", 0, 2, -1))
sketch34.addConstraint(Sketcher.Constraint("DistanceX", 1, 2, 1, 1, 2.5))
sketch34.addConstraint(Sketcher.Constraint("DistanceY", 0, 2, 0, 1, 4.873))
sketch34.addConstraint(Sketcher.Constraint("DistanceX", -1, 1, 0, 2, 76.25))
pad2 = body.newObject("PartDesign::Pad", "Pad001")
pad2.Profile = sketch34
pad2.Length = 63
pad2.Reversed = True

# Sketch on XY plane
sketch35 = body.newObject("Sketcher::SketchObject", "Sketch034")
sketch35.AttachmentSupport = (doc.getObject("XY_Plane"), [""])
sketch35.MapMode = "FlatFace"
sketch35.addGeometry(Part.LineSegment(V(73.8, 33.2, 0), V(73.8, 39.8, 0)), False)
sketch35.addGeometry(Part.LineSegment(V(73.8, 39.8, 0), V(76.2, 39.8, 0)), False)
sketch35.addGeometry(Part.LineSegment(V(76.2, 39.8, 0), V(76.2, 33.2, 0)), False)
sketch35.addGeometry(Part.LineSegment(V(76.2, 33.2, 0), V(73.8, 33.2, 0)), False)
sketch35.addConstraint(Sketcher.Constraint("Coincident", 0, 2, 1, 1))
sketch35.addConstraint(Sketcher.Constraint("Coincident", 1, 2, 2, 1))
sketch35.addConstraint(Sketcher.Constraint("Coincident", 2, 2, 3, 1))
sketch35.addConstraint(Sketcher.Constraint("Coincident", 3, 2, 0, 1))
sketch35.addConstraint(Sketcher.Constraint("Vertical", 0))
sketch35.addConstraint(Sketcher.Constraint("Horizontal", 1))
sketch35.addConstraint(Sketcher.Constraint("Vertical", 2))
sketch35.addConstraint(Sketcher.Constraint("Horizontal", 3))
sketch35.addConstraint(Sketcher.Constraint("DistanceX", 1, 1, 1, 2, 2.5))
sketch35.addConstraint(Sketcher.Constraint("DistanceY", 0, 1, 0, 2, 6.5))
sketch35.addConstraint(Sketcher.Constraint("DistanceX", -1, 1, 0, 2, 73.75))
sketch35.addConstraint(Sketcher.Constraint("DistanceY", -1, 1, 0, 2, 39.75))
pocket33 = body.newObject("PartDesign::Pocket", "Pocket032")
pocket33.Profile = sketch35
pocket33.Length = 0.623
pocket33.Reversed = True

# Sketch on XY plane
sketch36 = body.newObject("Sketcher::SketchObject", "Sketch035")
sketch36.AttachmentSupport = (doc.getObject("XY_Plane"), [""])
sketch36.MapMode = "FlatFace"
sketch36.AttachmentOffset = App.Placement(V(0, 0, 4.873), App.Rotation())
sketch36.addGeometry(Part.Circle(V(38.5, 13.8, 0), V(0, 0, 1), 2), False)
sketch36.addConstraint(Sketcher.Constraint("Diameter", 0, 4.0))
sketch36.addConstraint(Sketcher.Constraint("DistanceX", -1, 1, 0, 3, 38.5))
sketch36.addConstraint(Sketcher.Constraint("DistanceY", -1, 1, 0, 3, 13.8))
pocket34 = body.newObject("PartDesign::Pocket", "Pocket033")
pocket34.Profile = sketch36
pocket34.Length = 3
pocket34.Reversed = True

# Sketch on XY plane
sketch37 = body.newObject("Sketcher::SketchObject", "Sketch036")
sketch37.AttachmentSupport = (doc.getObject("XY_Plane"), [""])
sketch37.MapMode = "FlatFace"
sketch37.AttachmentOffset = App.Placement(V(0, 0, 4.873), App.Rotation())
sketch37.addGeometry(Part.Circle(V(111.5, 36.5, 0), V(0, 0, 1), 2), False)
sketch37.addConstraint(Sketcher.Constraint("Diameter", 0, 4.0))
sketch37.addConstraint(Sketcher.Constraint("DistanceX", -1, 1, 0, 3, 111.5))
sketch37.addConstraint(Sketcher.Constraint("DistanceY", -1, 1, 0, 3, 36.5))
pocket35 = body.newObject("PartDesign::Pocket", "Pocket034")
pocket35.Profile = sketch37
pocket35.Length = 3
pocket35.Reversed = True

# Sketch on XY plane
sketch38 = body.newObject("Sketcher::SketchObject", "Sketch037")
sketch38.AttachmentSupport = (doc.getObject("XY_Plane"), [""])
sketch38.MapMode = "FlatFace"
sketch38.AttachmentOffset = App.Placement(V(0, 0, 4.873), App.Rotation())
sketch38.addGeometry(Part.Circle(V(111.5, 13.8, 0), V(0, 0, 1), 2), False)
sketch38.addConstraint(Sketcher.Constraint("Diameter", 0, 4.0))
sketch38.addConstraint(Sketcher.Constraint("DistanceX", -1, 1, 0, 3, 111.5))
sketch38.addConstraint(Sketcher.Constraint("DistanceY", -1, 1, 0, 3, 13.8))
pocket36 = body.newObject("PartDesign::Pocket", "Pocket035")
pocket36.Profile = sketch38
pocket36.Length = 3
pocket36.Reversed = True

# Sketch on XY plane
sketch39 = body.newObject("Sketcher::SketchObject", "Sketch038")
sketch39.AttachmentSupport = (doc.getObject("XY_Plane"), [""])
sketch39.MapMode = "FlatFace"
sketch39.AttachmentOffset = App.Placement(V(0, 0, 4.873), App.Rotation())
sketch39.addGeometry(Part.Circle(V(61.3, 36.5, 0), V(0, 0, 1), 2), False)
sketch39.addConstraint(Sketcher.Constraint("Diameter", 0, 4.0))
sketch39.addConstraint(Sketcher.Constraint("DistanceX", -1, 1, 0, 3, 61.3))
sketch39.addConstraint(Sketcher.Constraint("DistanceY", -1, 1, 0, 3, 36.5))
pocket37 = body.newObject("PartDesign::Pocket", "Pocket036")
pocket37.Profile = sketch39
pocket37.Length = 3
pocket37.Reversed = True

# Sketch on XY plane
sketch40 = body.newObject("Sketcher::SketchObject", "Sketch039")
sketch40.AttachmentSupport = (doc.getObject("XY_Plane"), [""])
sketch40.MapMode = "FlatFace"
sketch40.AttachmentOffset = App.Placement(V(0, 0, 4.873), App.Rotation())
sketch40.addGeometry(Part.Circle(V(88.7, 36.5, 0), V(0, 0, 1), 2), False)
sketch40.addConstraint(Sketcher.Constraint("Diameter", 0, 4.0))
sketch40.addConstraint(Sketcher.Constraint("DistanceX", -1, 1, 0, 3, 88.7))
sketch40.addConstraint(Sketcher.Constraint("DistanceY", -1, 1, 0, 3, 36.5))
pocket38 = body.newObject("PartDesign::Pocket", "Pocket037")
pocket38.Profile = sketch40
pocket38.Length = 3
pocket38.Reversed = True

# Sketch on XY plane
sketch41 = body.newObject("Sketcher::SketchObject", "Sketch040")
sketch41.AttachmentSupport = (doc.getObject("XY_Plane"), [""])
sketch41.MapMode = "FlatFace"
sketch41.AttachmentOffset = App.Placement(V(0, 0, 4.873), App.Rotation())
sketch41.addGeometry(Part.Circle(V(38.5, 36.5, 0), V(0, 0, 1), 2), False)
sketch41.addConstraint(Sketcher.Constraint("Diameter", 0, 4.0))
sketch41.addConstraint(Sketcher.Constraint("DistanceX", -1, 1, 0, 3, 38.5))
sketch41.addConstraint(Sketcher.Constraint("DistanceY", -1, 1, 0, 3, 36.5))
pocket39 = body.newObject("PartDesign::Pocket", "Pocket038")
pocket39.Profile = sketch41
pocket39.Length = 3
pocket39.Reversed = True

# Sketch on XY plane
sketch42 = body.newObject("Sketcher::SketchObject", "Sketch041")
sketch42.AttachmentSupport = (doc.getObject("XY_Plane"), [""])
sketch42.MapMode = "FlatFace"
sketch42.addGeometry(Part.Circle(V(51.2, 70.5, 0), V(0, 0, 1), 1.2), False)
sketch42.addConstraint(Sketcher.Constraint("Diameter", 0, 2.5))
sketch42.addConstraint(Sketcher.Constraint("DistanceY", -1, 1, 0, 3, 70.5))
sketch42.addConstraint(Sketcher.Constraint("DistanceX", -1, 1, 0, 3, 51.25))
pocket40 = body.newObject("PartDesign::Pocket", "Pocket039")
pocket40.Profile = sketch42
pocket40.Length = 7.873
pocket40.Reversed = True

# Sketch on XY plane
sketch43 = body.newObject("Sketcher::SketchObject", "Sketch042")
sketch43.AttachmentSupport = (doc.getObject("XY_Plane"), [""])
sketch43.MapMode = "FlatFace"
sketch43.addGeometry(Part.Circle(V(98.8, 70.5, 0), V(0, 0, 1), 1.2), False)
sketch43.addConstraint(Sketcher.Constraint("Diameter", 0, 2.5))
sketch43.addConstraint(Sketcher.Constraint("DistanceY", -1, 1, 0, 3, 70.5))
sketch43.addConstraint(Sketcher.Constraint("DistanceX", -1, 1, 0, 3, 98.75))
pocket41 = body.newObject("PartDesign::Pocket", "Pocket040")
pocket41.Profile = sketch43
pocket41.Length = 7.873
pocket41.Reversed = True

doc.recompute()
